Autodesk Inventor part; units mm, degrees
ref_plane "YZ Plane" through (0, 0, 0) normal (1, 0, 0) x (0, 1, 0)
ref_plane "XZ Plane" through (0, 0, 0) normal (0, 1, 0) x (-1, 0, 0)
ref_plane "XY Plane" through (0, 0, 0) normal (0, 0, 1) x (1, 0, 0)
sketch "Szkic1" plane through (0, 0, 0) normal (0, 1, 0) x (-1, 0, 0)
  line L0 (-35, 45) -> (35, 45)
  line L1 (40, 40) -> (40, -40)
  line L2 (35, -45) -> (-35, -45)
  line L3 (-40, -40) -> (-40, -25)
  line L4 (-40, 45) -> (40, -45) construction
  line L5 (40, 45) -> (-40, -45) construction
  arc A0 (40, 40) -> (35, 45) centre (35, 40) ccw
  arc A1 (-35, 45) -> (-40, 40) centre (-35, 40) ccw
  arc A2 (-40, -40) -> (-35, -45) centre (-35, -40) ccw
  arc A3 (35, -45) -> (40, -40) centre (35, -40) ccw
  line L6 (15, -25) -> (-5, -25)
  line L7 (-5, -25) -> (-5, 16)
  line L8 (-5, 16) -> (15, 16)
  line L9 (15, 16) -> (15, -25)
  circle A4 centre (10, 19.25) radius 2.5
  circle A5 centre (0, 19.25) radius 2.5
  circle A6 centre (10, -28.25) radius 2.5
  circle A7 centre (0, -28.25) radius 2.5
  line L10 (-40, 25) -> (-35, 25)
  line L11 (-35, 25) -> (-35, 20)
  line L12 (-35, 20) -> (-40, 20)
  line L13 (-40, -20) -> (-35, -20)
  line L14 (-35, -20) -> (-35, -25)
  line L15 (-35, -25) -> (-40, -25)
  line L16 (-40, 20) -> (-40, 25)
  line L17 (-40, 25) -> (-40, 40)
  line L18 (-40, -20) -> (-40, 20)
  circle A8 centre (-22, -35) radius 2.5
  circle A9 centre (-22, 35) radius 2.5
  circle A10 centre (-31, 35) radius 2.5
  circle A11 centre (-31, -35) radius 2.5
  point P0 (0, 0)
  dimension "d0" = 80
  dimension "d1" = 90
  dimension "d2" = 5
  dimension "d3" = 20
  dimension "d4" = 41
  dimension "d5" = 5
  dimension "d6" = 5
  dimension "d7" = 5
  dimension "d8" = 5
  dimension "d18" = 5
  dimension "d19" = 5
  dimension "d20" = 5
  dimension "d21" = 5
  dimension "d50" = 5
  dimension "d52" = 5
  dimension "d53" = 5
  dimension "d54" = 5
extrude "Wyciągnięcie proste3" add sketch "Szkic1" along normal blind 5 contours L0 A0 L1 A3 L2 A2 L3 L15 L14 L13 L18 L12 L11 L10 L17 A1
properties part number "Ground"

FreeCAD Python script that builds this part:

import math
import FreeCAD as App
import Part
import Sketcher

V = App.Vector
Q = App.Units.Quantity

doc = App.newDocument("Part")
body = doc.addObject("PartDesign::Body", "Body")

sketch1 = doc.addObject("Sketcher::SketchObject", "Sketch")
body.addObject(sketch1)
sketch1.AttachmentSupport = (doc.XZ_Plane, [""])
sketch1.MapMode = "FlatFace"
sketch1.addGeometry(Part.LineSegment(V(-35, 45, 0), V(35, 45, 0)), False)
sketch1.addGeometry(Part.ArcOfCircle(Part.Circle(V(35, 40, 0), V(0, 0, 1), 5), math.radians(0), math.radians(90)), False)
sketch1.addGeometry(Part.LineSegment(V(40, 40, 0), V(40, 25, 0)), False)
sketch1.addGeometry(Part.LineSegment(V(40, 25, 0), V(35, 25, 0)), False)
sketch1.addGeometry(Part.LineSegment(V(35, 25, 0), V(35, 20, 0)), False)
sketch1.addGeometry(Part.LineSegment(V(35, 20, 0), V(40, 20, 0)), False)
sketch1.addGeometry(Part.LineSegment(V(40, 20, 0), V(40, -20, 0)), False)
sketch1.addGeometry(Part.LineSegment(V(40, -20, 0), V(35, -20, 0)), False)
sketch1.addGeometry(Part.LineSegment(V(35, -20, 0), V(35, -25, 0)), False)
sketch1.addGeometry(Part.LineSegment(V(35, -25, 0), V(40, -25, 0)), False)
sketch1.addGeometry(Part.LineSegment(V(40, -25, 0), V(40, -40, 0)), False)
sketch1.addGeometry(Part.ArcOfCircle(Part.Circle(V(35, -40, 0), V(0, 0, 1), 5), math.radians(-90), math.radians(0)), False)
sketch1.addGeometry(Part.LineSegment(V(35, -45, 0), V(-35, -45, 0)), False)
sketch1.addGeometry(Part.ArcOfCircle(Part.Circle(V(-35, -40, 0), V(0, 0, 1), 5), math.radians(180), math.radians(270)), False)
sketch1.addGeometry(Part.LineSegment(V(-40, -40, 0), V(-40, 40, 0)), False)
sketch1.addGeometry(Part.ArcOfCircle(Part.Circle(V(-35, 40, 0), V(0, 0, 1), 5), math.radians(90), math.radians(180)), False)
sketch1.addGeometry(Part.Circle(V(31, -35, 0), V(0, 0, 1), 2.5), False)
sketch1.addGeometry(Part.Circle(V(22, -35, 0), V(0, 0, 1), 2.5), False)
sketch1.addGeometry(Part.Circle(V(0, -28.25, 0), V(0, 0, 1), 2.5), False)
sketch1.addGeometry(Part.Circle(V(-10, -28.25, 0), V(0, 0, 1), 2.5), False)
sketch1.addGeometry(Part.LineSegment(V(-15, 16, 0), V(-15, -25, 0)), False)
sketch1.addGeometry(Part.LineSegment(V(-15, -25, 0), V(5, -25, 0)), False)
sketch1.addGeometry(Part.LineSegment(V(5, -25, 0), V(5, 16, 0)), False)
sketch1.addGeometry(Part.LineSegment(V(5, 16, 0), V(-15, 16, 0)), False)
sketch1.addGeometry(Part.Circle(V(31, 35, 0), V(0, 0, 1), 2.5), False)
sketch1.addGeometry(Part.Circle(V(22, 35, 0), V(0, 0, 1), 2.5), False)
sketch1.addGeometry(Part.Circle(V(0, 19.25, 0), V(0, 0, 1), 2.5), False)
sketch1.addGeometry(Part.Circle(V(-10, 19.25, 0), V(0, 0, 1), 2.5), False)
sketch1.addConstraint(Sketcher.Constraint("Tangent", 0, 2, 1, 2))
sketch1.addConstraint(Sketcher.Constraint("Tangent", 1, 1, 2, 1))
sketch1.addConstraint(Sketcher.Constraint("Coincident", 2, 2, 3, 1))
sketch1.addConstraint(Sketcher.Constraint("Coincident", 3, 2, 4, 1))
sketch1.addConstraint(Sketcher.Constraint("Coincident", 4, 2, 5, 1))
sketch1.addConstraint(Sketcher.Constraint("Coincident", 5, 2, 6, 1))
sketch1.addConstraint(Sketcher.Constraint("Coincident", 6, 2, 7, 1))
sketch1.addConstraint(Sketcher.Constraint("Coincident", 7, 2, 8, 1))
sketch1.addConstraint(Sketcher.Constraint("Coincident", 8, 2, 9, 1))
sketch1.addConstraint(Sketcher.Constraint("Coincident", 9, 2, 10, 1))
sketch1.addConstraint(Sketcher.Constraint("Tangent", 10, 2, 11, 2))
sketch1.addConstraint(Sketcher.Constraint("Tangent", 11, 1, 12, 1))
sketch1.addConstraint(Sketcher.Constraint("Tangent", 12, 2, 13, 2))
sketch1.addConstraint(Sketcher.Constraint("Tangent", 13, 1, 14, 1))
sketch1.addConstraint(Sketcher.Constraint("Tangent", 14, 2, 15, 2))
sketch1.addConstraint(Sketcher.Constraint("Tangent", 15, 1, 0, 1))
sketch1.addConstraint(Sketcher.Constraint("Coincident", 20, 2, 21, 1))
sketch1.addConstraint(Sketcher.Constraint("Coincident", 21, 2, 22, 1))
sketch1.addConstraint(Sketcher.Constraint("Coincident", 22, 2, 23, 1))
sketch1.addConstraint(Sketcher.Constraint("Coincident", 23, 2, 20, 1))
sketch1.addConstraint(Sketcher.Constraint("Horizontal", 0))
sketch1.addConstraint(Sketcher.Constraint("Vertical", 2))
sketch1.addConstraint(Sketcher.Constraint("Horizontal", 3))
sketch1.addConstraint(Sketcher.Constraint("Vertical", 4))
sketch1.addConstraint(Sketcher.Constraint("Horizontal", 5))
sketch1.addConstraint(Sketcher.Constraint("Vertical", 6))
sketch1.addConstraint(Sketcher.Constraint("Horizontal", 7))
sketch1.addConstraint(Sketcher.Constraint("Vertical", 8))
sketch1.addConstraint(Sketcher.Constraint("Horizontal", 9))
sketch1.addConstraint(Sketcher.Constraint("Vertical", 10))
sketch1.addConstraint(Sketcher.Constraint("Horizontal", 12))
sketch1.addConstraint(Sketcher.Constraint("Vertical", 14))
sketch1.addConstraint(Sketcher.Constraint("Vertical", 20))
sketch1.addConstraint(Sketcher.Constraint("Horizontal", 21))
sketch1.addConstraint(Sketcher.Constraint("Vertical", 22))
sketch1.addConstraint(Sketcher.Constraint("Horizontal", 23))
sketch1.addConstraint(Sketcher.Constraint("Equal", 1, 11))
sketch1.addConstraint(Sketcher.Constraint("Equal", 11, 13))
sketch1.addConstraint(Sketcher.Constraint("Equal", 13, 15))
sketch1.addConstraint(Sketcher.Constraint("Equal", 16, 17))
sketch1.addConstraint(Sketcher.Constraint("Equal", 17, 18))
sketch1.addConstraint(Sketcher.Constraint("Equal", 18, 19))
sketch1.addConstraint(Sketcher.Constraint("Equal", 19, 24))
sketch1.addConstraint(Sketcher.Constraint("Equal", 24, 25))
sketch1.addConstraint(Sketcher.Constraint("Equal", 25, 26))
sketch1.addConstraint(Sketcher.Constraint("Equal", 26, 27))
sketch1.addConstraint(Sketcher.Constraint("Symmetric", 1, 3, 13, 3, -1, 1))
sketch1.addConstraint(Sketcher.Constraint("Symmetric", 16, 3, 24, 3, -1))
sketch1.addConstraint(Sketcher.Constraint("Symmetric", 17, 3, 25, 3, -1))
sketch1.addConstraint(Sketcher.Constraint("Symmetric", 4, 2, 7, 2, -1))
sketch1.addConstraint(Sketcher.Constraint("Symmetric", 2, 2, 9, 2, -1))
sketch1.addConstraint(Sketcher.Constraint("PointOnObject", 18, 3, -2))
sketch1.addConstraint(Sketcher.Constraint("PointOnObject", 26, 3, -2))
sketch1.addConstraint(Sketcher.Constraint("Horizontal", 16, 3, 17, 3))
sketch1.addConstraint(Sketcher.Constraint("Horizontal", 18, 3, 19, 3))
sketch1.addConstraint(Sketcher.Constraint("Horizontal", 26, 3, 27, 3))
sketch1.addConstraint(Sketcher.Constraint("Horizontal", 9, 2, 20, 2))
sketch1.addConstraint(Sketcher.Constraint("Vertical", 19, 3, 27, 3))
sketch1.addConstraint(Sketcher.Constraint("Vertical", 0, 2, 3, 2))
sketch1.addConstraint(Sketcher.Constraint("Vertical", 2, 2, 5, 2))
sketch1.addConstraint(Sketcher.Constraint("Equal", 9, 4))
sketch1.addConstraint(Sketcher.Constraint("Diameter", 16, Q("5 mm")))
sketch1.addConstraint(Sketcher.Constraint("Radius", 1, Q("5 mm")))
sketch1.addConstraint(Sketcher.Constraint("DistanceX", 21, 1, 21, 2, Q("20 mm")))
sketch1.addConstraint(Sketcher.Constraint("DistanceY", 14, 1, 14, 2, Q("80 mm")))
sketch1.addConstraint(Sketcher.Constraint("DistanceY", 20, 2, 20, 1, Q("41 mm")))
sketch1.addConstraint(Sketcher.Constraint("DistanceY", -1, 1, 4, 2, Q("20 mm")))
sketch1.addConstraint(Sketcher.Constraint("DistanceX", -1, 1, 21, 2, Q("5 mm")))
sketch1.addConstraint(Sketcher.Constraint("DistanceY", 11, 3, 16, 3, Q("5 mm")))
sketch1.addConstraint(Sketcher.Constraint("DistanceX", 19, 3, 16, 3, Q("41 mm")))
sketch1.addConstraint(Sketcher.Constraint("DistanceX", 20, 2, 19, 3, Q("5 mm")))
sketch1.addConstraint(Sketcher.Constraint("DistanceX", 13, 3, 20, 2, Q("20 mm")))
sketch1.addConstraint(Sketcher.Constraint("DistanceX", -1, 1, 17, 3, Q("22 mm")))
sketch1.addConstraint(Sketcher.Constraint("DistanceY", 18, 3, 26, 3, Q("47.5 mm")))
sketch1.addConstraint(Sketcher.Constraint("DistanceY", 18, 3, -1, 1, Q("28.25 mm")))
pad1 = doc.addObject("PartDesign::Pad", "Pad")
body.addObject(pad1)
pad1.Profile = sketch1
pad1.Length = 5
pad1.Reversed = True

doc.recompute()
